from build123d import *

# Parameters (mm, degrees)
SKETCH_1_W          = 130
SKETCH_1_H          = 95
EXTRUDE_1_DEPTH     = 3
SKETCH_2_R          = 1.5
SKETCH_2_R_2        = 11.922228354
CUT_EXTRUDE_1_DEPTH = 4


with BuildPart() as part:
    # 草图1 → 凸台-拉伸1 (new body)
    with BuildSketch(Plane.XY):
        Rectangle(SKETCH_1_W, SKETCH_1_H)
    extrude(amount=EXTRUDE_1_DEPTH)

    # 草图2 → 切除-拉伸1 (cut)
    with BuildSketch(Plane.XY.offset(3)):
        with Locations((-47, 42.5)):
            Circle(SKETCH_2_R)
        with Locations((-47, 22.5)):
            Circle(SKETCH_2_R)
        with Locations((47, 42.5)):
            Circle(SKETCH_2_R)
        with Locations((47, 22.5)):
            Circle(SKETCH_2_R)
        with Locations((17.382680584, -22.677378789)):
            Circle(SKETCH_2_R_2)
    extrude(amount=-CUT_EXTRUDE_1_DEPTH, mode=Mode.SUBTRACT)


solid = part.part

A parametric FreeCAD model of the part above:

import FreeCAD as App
import Part
import Sketcher
from FreeCAD import Vector
Q = App.Units.Quantity

doc = App.newDocument("Part")
body = doc.addObject("PartDesign::Body", "Body")

sketch1 = body.newObject("Sketcher::SketchObject", "Sketch")
sketch1.AttachmentSupport = (doc.getObject("XY_Plane"), [""])
sketch1.MapMode = "FlatFace"
sketch1.addGeometry([
    Part.LineSegment(Vector(-65, 48, 0), Vector(-65, -48, 0)),
    Part.LineSegment(Vector(-65, -48, 0), Vector(65, -48, 0)),
    Part.LineSegment(Vector(65, -48, 0), Vector(65, 48, 0)),
    Part.LineSegment(Vector(65, 48, 0), Vector(-65, 48, 0)),
], False)
sketch1.addConstraint([
    Sketcher.Constraint("Coincident", 0, 2, 1, 1),
    Sketcher.Constraint("Coincident", 1, 2, 2, 1),
    Sketcher.Constraint("Coincident", 2, 2, 3, 1),
    Sketcher.Constraint("Coincident", 3, 2, 0, 1),
    Sketcher.Constraint("Vertical", 0),
    Sketcher.Constraint("Horizontal", 1),
    Sketcher.Constraint("Vertical", 2),
    Sketcher.Constraint("Horizontal", 3),
    Sketcher.Constraint("Symmetric", 0, 2, 2, 2, -1, 1),
    Sketcher.Constraint("DistanceX", 1, 1, 1, 2, Q("130 mm")),
    Sketcher.Constraint("DistanceY", 0, 2, 0, 1, Q("95 mm")),
])
pad1 = body.newObject("PartDesign::Pad", "Pad")
pad1.Profile = sketch1
pad1.Length = 3

sketch2 = body.newObject("Sketcher::SketchObject", "Sketch001")
sketch2.AttachmentSupport = (doc.getObject("XY_Plane"), [""])
sketch2.MapMode = "FlatFace"
sketch2.AttachmentOffset = App.Placement(Vector(0, 0, 3), App.Rotation())
sketch2.addGeometry([
    Part.Circle(Vector(-47, 42.5, 0), Vector(0, 0, 1), 1.5),
    Part.Circle(Vector(-47, 22.5, 0), Vector(0, 0, 1), 1.5),
    Part.Circle(Vector(47, 42.5, 0), Vector(0, 0, 1), 1.5),
    Part.Circle(Vector(47, 22.5, 0), Vector(0, 0, 1), 1.5),
    Part.Circle(Vector(17.4, -22.7, 0), Vector(0, 0, 1), 11.9),
], False)
sketch2.addConstraint([
    Sketcher.Constraint("Equal", 0, 1),
    Sketcher.Constraint("Equal", 1, 2),
    Sketcher.Constraint("Equal", 2, 3),
    Sketcher.Constraint("Symmetric", 0, 3, 2, 3, -2),
    Sketcher.Constraint("Symmetric", 1, 3, 3, 3, -2),
    Sketcher.Constraint("Vertical", 0, 3, 1, 3),
    Sketcher.Constraint("Diameter", 0, Q("3 mm")),
    Sketcher.Constraint("DistanceX", 0, 3, -1, 1, Q("47 mm")),
    Sketcher.Constraint("DistanceY", 1, 3, 0, 3, Q("20 mm")),
    Sketcher.Constraint("DistanceY", -1, 1, 0, 3, Q("42.5 mm")),
    Sketcher.Constraint("Diameter", 4, Q("23.844457 mm")),
    Sketcher.Constraint("DistanceX", -1, 1, 4, 3, Q("17.382681 mm")),
    Sketcher.Constraint("DistanceY", 4, 3, -1, 1, Q("22.677379 mm")),
])
pocket1 = body.newObject("PartDesign::Pocket", "Pocket")
pocket1.Profile = sketch2
pocket1.Length = 4

doc.recompute()
